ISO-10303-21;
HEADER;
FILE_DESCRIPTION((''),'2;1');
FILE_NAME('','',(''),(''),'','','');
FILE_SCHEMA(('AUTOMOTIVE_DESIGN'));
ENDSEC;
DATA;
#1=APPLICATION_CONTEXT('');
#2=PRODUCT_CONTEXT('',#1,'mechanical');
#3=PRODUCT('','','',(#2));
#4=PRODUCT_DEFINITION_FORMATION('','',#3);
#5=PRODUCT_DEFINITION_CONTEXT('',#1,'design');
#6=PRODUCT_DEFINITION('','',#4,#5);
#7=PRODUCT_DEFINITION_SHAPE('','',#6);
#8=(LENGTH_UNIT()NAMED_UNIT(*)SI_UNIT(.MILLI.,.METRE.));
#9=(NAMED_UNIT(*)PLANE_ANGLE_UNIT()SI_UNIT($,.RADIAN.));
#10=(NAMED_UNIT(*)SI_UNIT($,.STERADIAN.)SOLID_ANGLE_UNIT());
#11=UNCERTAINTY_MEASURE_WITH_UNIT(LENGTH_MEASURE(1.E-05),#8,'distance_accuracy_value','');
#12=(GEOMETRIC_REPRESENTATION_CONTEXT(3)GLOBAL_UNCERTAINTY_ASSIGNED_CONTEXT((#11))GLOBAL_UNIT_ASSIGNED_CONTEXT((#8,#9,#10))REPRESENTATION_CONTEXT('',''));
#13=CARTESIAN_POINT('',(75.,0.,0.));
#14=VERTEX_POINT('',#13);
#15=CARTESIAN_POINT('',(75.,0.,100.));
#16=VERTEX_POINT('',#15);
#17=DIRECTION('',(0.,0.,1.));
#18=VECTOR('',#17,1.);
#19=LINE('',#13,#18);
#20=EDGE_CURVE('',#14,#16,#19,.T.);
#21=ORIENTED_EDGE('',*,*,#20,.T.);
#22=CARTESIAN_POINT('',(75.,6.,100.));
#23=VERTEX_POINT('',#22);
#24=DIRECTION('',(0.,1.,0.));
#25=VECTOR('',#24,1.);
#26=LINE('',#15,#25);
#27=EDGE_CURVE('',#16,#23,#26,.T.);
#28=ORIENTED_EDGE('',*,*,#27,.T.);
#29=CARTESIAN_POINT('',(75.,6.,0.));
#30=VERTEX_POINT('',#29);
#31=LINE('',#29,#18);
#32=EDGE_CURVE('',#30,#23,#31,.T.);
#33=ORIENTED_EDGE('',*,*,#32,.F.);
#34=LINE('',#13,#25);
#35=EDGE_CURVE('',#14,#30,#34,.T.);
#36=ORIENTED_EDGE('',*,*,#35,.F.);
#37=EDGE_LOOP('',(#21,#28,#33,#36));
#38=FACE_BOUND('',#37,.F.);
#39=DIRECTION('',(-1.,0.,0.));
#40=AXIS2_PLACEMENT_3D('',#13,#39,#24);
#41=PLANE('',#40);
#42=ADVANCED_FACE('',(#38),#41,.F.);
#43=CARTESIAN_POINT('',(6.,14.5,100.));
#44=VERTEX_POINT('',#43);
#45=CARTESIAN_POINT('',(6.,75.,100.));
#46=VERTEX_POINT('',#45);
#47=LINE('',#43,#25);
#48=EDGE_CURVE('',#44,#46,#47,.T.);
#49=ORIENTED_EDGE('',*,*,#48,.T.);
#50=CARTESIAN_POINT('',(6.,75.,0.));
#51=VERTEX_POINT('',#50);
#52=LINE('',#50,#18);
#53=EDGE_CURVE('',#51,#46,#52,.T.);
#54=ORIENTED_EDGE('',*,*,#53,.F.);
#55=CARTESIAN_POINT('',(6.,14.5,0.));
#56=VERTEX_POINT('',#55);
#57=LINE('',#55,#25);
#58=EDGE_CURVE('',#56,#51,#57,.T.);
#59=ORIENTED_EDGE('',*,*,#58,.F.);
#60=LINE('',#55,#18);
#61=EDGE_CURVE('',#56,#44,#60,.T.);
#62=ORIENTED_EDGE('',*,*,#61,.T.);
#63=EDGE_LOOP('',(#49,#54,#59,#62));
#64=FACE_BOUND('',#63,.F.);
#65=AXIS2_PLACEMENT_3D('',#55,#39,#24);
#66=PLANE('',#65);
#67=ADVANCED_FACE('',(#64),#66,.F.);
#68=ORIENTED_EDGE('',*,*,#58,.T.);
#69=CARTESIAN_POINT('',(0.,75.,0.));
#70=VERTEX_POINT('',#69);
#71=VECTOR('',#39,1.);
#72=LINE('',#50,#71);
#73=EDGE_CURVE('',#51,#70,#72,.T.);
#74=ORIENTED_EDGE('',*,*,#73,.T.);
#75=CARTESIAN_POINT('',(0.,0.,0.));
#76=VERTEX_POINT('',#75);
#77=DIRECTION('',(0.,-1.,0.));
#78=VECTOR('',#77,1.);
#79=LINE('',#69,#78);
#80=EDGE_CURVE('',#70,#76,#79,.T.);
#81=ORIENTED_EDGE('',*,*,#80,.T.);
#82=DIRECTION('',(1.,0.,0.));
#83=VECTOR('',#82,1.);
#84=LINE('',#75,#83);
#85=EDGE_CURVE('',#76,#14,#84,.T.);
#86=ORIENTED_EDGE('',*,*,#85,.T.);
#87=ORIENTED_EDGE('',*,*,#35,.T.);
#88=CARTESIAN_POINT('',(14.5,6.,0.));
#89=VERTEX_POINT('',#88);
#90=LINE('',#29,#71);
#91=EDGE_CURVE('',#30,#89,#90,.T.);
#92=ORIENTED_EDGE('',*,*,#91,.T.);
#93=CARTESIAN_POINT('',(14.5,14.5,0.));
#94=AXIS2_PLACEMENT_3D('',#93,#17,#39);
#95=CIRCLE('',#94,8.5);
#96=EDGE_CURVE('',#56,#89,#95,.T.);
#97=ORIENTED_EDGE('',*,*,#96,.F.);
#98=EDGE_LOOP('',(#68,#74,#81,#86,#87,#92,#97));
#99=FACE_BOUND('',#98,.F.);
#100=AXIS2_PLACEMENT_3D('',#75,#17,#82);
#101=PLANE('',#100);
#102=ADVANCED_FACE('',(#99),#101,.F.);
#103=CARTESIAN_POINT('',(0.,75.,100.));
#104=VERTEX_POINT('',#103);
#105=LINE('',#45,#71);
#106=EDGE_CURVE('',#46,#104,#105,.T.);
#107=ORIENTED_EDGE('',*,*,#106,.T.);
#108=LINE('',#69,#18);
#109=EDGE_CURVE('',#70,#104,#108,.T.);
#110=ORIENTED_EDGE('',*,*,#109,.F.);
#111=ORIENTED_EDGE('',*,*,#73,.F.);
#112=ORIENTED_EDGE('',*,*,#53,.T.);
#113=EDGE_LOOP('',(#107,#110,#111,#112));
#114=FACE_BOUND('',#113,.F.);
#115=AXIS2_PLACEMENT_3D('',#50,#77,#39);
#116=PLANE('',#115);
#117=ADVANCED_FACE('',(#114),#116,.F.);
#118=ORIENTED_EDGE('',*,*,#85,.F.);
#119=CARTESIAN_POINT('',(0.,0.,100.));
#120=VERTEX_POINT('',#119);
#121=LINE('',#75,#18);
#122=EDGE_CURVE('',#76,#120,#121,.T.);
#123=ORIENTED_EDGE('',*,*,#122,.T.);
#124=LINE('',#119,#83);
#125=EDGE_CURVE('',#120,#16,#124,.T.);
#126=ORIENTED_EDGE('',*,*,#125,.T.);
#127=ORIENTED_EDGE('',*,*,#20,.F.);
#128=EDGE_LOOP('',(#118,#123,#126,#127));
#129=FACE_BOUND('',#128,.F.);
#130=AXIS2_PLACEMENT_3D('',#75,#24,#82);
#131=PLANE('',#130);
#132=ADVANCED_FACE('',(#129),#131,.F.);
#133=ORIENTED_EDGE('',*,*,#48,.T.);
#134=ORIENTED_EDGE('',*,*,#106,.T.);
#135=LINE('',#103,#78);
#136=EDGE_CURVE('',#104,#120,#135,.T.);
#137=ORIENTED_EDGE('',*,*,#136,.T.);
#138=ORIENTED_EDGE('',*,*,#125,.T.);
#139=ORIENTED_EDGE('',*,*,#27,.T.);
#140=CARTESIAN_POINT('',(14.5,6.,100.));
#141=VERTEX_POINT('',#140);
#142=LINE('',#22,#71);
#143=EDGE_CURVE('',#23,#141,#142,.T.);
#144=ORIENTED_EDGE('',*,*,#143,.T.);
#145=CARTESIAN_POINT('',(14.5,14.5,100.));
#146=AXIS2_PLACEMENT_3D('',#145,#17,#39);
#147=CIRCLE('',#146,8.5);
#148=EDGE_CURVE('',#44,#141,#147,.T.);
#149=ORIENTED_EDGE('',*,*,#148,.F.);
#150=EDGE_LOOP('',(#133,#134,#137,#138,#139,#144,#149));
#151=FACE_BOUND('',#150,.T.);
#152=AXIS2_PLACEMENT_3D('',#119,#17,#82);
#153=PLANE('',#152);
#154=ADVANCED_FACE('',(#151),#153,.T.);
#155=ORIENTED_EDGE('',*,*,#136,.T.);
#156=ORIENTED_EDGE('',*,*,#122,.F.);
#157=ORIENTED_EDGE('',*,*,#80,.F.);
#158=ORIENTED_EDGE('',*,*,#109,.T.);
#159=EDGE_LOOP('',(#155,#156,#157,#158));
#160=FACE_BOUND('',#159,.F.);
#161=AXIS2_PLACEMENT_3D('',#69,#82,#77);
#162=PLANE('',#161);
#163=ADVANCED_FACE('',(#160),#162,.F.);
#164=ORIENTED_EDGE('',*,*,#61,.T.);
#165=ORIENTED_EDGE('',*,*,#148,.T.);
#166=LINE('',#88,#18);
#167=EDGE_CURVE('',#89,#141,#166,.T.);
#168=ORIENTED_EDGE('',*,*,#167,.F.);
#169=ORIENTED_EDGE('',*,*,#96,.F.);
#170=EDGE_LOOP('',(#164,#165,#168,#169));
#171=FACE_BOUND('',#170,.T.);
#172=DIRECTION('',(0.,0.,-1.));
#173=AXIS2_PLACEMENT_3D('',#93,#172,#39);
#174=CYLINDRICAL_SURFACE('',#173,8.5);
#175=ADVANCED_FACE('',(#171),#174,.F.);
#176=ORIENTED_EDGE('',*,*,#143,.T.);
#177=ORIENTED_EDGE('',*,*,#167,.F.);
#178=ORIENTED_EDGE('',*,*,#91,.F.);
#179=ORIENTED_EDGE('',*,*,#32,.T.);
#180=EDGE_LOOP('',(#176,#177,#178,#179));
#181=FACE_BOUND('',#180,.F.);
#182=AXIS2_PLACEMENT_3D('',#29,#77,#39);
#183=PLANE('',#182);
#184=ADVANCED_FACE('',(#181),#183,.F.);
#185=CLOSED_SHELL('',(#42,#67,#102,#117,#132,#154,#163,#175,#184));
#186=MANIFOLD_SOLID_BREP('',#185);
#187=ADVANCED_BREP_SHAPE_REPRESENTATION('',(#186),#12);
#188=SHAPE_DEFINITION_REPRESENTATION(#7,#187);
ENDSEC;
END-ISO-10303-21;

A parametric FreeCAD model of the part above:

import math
import FreeCAD as App
import Part
import Sketcher
from FreeCAD import Vector
Q = App.Units.Quantity

doc = App.newDocument("Part")
body = doc.addObject("PartDesign::Body", "Body")

# Sketch on XY plane
sketch1 = body.newObject("Sketcher::SketchObject", "Sketch")
sketch1.AttachmentSupport = (doc.getObject("XY_Plane"), [""])
sketch1.MapMode = "FlatFace"
sketch1.addGeometry([
    Part.LineSegment(Vector(6, 75, 0), Vector(0, 75, 0)),  # 0
    Part.LineSegment(Vector(0, 75, 0), Vector(0, 0, 0)),  # 1
    Part.LineSegment(Vector(0, 0, 0), Vector(75, 0, 0)),  # 2
    Part.LineSegment(Vector(75, 0, 0), Vector(75, 6, 0)),  # 3
    Part.LineSegment(Vector(75, 6, 0), Vector(14, 6, 0)),  # 4
    Part.ArcOfCircle(Part.Circle(Vector(14, 14, 0), Vector(0, 0, 1), 8), math.radians(180), math.radians(270)),  # 5
    Part.LineSegment(Vector(6, 14, 0), Vector(6, 75, 0)),  # 6
], False)
sketch1.addConstraint([
    Sketcher.Constraint("Coincident", 0, 2, 1, 1),
    Sketcher.Constraint("Coincident", 1, 2, 2, 1),
    Sketcher.Constraint("Coincident", 2, 2, 3, 1),
    Sketcher.Constraint("Coincident", 3, 2, 4, 1),
    Sketcher.Constraint("Tangent", 4, 2, 5, 2),
    Sketcher.Constraint("Tangent", 5, 1, 6, 1),
    Sketcher.Constraint("Coincident", 6, 2, 0, 1),
    Sketcher.Constraint("Horizontal", 0),
    Sketcher.Constraint("Vertical", 1),
    Sketcher.Constraint("Horizontal", 2),
    Sketcher.Constraint("Vertical", 3),
    Sketcher.Constraint("Horizontal", 4),
    Sketcher.Constraint("Vertical", 6),
    Sketcher.Constraint("Coincident", 1, 2, -1, 1),
    Sketcher.Constraint("Equal", 2, 1),
    Sketcher.Constraint("Equal", 0, 3),
    Sketcher.Constraint("Radius", 5, Q("8.5 mm")),
    Sketcher.Constraint("DistanceX", 0, 2, 0, 1, Q("6 mm")),
    Sketcher.Constraint("DistanceX", 2, 1, 2, 2, Q("75 mm")),
])
pad1 = body.newObject("PartDesign::Pad", "Pad")
pad1.Profile = sketch1
pad1.Length = 100

doc.recompute()
